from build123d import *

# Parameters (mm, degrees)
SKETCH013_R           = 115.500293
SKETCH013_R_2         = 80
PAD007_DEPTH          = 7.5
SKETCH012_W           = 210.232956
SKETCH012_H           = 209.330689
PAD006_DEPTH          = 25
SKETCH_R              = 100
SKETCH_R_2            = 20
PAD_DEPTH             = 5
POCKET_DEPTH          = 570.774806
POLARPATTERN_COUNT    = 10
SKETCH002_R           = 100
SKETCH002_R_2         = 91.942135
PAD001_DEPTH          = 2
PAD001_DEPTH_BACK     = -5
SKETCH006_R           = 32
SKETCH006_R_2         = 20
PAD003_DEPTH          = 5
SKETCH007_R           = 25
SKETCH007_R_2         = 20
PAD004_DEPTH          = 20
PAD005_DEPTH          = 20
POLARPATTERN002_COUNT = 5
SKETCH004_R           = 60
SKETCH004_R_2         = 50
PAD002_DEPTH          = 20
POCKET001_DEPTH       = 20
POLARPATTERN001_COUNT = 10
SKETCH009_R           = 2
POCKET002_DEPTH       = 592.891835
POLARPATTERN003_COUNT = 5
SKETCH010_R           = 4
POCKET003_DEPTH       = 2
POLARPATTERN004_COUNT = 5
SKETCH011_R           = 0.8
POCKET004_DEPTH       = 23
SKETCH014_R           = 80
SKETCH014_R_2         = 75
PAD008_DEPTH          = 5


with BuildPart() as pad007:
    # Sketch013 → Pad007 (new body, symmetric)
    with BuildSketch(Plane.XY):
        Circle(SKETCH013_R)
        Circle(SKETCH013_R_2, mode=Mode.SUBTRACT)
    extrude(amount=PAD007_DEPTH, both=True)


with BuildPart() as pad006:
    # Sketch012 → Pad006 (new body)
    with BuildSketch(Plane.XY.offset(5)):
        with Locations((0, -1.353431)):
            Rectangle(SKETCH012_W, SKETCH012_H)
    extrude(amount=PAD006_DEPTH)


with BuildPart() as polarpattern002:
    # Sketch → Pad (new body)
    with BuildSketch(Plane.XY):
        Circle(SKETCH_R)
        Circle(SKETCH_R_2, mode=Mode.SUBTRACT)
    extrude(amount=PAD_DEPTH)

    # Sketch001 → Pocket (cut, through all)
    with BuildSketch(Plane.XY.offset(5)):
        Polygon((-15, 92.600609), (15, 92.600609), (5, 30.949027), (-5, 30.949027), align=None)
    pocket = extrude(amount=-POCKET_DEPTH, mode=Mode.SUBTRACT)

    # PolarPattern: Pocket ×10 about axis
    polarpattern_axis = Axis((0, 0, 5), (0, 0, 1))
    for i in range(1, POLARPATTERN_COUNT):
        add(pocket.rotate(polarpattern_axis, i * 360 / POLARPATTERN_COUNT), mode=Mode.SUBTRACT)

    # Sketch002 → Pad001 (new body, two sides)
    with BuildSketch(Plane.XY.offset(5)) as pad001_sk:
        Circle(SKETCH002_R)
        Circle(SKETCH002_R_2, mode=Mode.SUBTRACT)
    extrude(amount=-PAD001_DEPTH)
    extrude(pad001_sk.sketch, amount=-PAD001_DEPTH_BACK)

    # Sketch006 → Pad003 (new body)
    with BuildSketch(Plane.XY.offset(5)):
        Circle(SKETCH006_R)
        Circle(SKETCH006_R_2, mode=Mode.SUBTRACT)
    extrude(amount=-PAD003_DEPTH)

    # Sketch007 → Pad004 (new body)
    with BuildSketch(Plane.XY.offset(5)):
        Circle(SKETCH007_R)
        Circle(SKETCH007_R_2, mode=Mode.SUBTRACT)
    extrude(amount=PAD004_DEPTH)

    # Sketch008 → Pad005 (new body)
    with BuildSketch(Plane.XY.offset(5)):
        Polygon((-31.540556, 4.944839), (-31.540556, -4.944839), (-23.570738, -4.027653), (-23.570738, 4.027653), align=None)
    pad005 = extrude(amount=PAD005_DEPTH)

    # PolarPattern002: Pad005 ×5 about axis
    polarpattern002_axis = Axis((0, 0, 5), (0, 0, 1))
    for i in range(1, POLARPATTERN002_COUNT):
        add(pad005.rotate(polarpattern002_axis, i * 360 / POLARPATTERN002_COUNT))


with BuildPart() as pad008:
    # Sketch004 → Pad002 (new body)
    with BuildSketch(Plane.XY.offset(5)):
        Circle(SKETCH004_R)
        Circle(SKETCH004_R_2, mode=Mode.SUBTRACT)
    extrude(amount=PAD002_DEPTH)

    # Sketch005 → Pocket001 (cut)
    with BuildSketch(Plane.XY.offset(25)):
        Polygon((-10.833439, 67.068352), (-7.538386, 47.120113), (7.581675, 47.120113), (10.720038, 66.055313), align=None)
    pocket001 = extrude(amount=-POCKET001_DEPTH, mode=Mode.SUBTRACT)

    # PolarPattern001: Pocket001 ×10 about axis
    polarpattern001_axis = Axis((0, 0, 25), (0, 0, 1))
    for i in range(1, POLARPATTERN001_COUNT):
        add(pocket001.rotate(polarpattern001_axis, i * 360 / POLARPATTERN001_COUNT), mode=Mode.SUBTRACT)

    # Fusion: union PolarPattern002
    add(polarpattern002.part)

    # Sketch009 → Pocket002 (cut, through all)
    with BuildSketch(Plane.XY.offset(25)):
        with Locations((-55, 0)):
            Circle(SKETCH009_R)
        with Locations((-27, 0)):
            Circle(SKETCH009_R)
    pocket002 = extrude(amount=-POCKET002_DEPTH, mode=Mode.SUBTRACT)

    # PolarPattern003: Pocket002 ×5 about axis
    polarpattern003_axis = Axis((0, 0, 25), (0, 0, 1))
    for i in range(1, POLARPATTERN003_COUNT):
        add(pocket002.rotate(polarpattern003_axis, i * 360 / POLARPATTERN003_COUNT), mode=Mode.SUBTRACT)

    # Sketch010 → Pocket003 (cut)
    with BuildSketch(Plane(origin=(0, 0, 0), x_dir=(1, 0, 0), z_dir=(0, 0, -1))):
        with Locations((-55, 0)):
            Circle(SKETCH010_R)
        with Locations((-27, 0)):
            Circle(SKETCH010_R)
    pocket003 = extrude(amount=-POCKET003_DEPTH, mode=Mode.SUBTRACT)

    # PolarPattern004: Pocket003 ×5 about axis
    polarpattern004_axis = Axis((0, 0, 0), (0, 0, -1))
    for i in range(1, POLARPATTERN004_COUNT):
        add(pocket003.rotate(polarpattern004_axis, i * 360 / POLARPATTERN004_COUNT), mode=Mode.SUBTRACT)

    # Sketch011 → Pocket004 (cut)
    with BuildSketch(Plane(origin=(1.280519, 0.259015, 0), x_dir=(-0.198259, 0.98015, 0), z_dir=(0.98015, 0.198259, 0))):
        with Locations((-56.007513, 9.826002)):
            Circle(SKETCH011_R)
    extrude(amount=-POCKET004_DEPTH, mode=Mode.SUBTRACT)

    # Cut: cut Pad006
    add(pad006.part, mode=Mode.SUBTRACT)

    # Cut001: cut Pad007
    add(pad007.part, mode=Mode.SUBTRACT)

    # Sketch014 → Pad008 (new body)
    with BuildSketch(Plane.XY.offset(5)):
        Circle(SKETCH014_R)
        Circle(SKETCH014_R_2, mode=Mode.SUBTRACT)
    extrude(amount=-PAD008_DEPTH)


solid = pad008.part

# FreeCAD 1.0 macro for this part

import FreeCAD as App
import Part
import Sketcher

V = App.Vector
Q = App.Units.Quantity

doc = App.newDocument("Part")
body = doc.addObject("PartDesign::Body", "Body")

# Sketch on XY plane
sketch1 = body.newObject("Sketcher::SketchObject", "Sketch")
sketch1.AttachmentSupport = (doc.getObject("XY_Plane"), [""])
sketch1.MapMode = "FlatFace"
sketch1.addGeometry(Part.Circle(V(0, 0, 0), V(0, 0, 1), 115.500293), False)
sketch1.addGeometry(Part.Circle(V(0, 0, 0), V(0, 0, 1), 80), False)
sketch1.addConstraint(Sketcher.Constraint("Coincident", 0, 3, -1, 1))
sketch1.addConstraint(Sketcher.Constraint("Coincident", 1, 3, -1, 1))
sketch1.addConstraint(Sketcher.Constraint("Diameter", 1, Q("160 mm")))
sketch1.addConstraint(Sketcher.Constraint("Diameter", 0, Q("231.000586 mm")))
pad1 = body.newObject("PartDesign::Pad", "Pad")
pad1.Profile = sketch1
pad1.Length = 15
pad1.Midplane = True
body2 = doc.addObject("PartDesign::Body", "Body001")

# Sketch on XY plane
sketch2 = body2.newObject("Sketcher::SketchObject", "Sketch001")
sketch2.AttachmentSupport = (doc.getObject("XY_Plane001"), [""])
sketch2.MapMode = "FlatFace"
sketch2.AttachmentOffset = App.Placement(V(0, 0, 5), App.Rotation())
sketch2.addGeometry(Part.LineSegment(V(-105.116478, 103.311914, 0), V(-105.116478, -106.018776, 0)), False)
sketch2.addGeometry(Part.LineSegment(V(-105.116478, -106.018776, 0), V(105.116478, -106.018776, 0)), False)
sketch2.addGeometry(Part.LineSegment(V(105.116478, -106.018776, 0), V(105.116478, 103.311914, 0)), False)
sketch2.addGeometry(Part.LineSegment(V(105.116478, 103.311914, 0), V(-105.116478, 103.311914, 0)), False)
sketch2.addConstraint(Sketcher.Constraint("Coincident", 0, 2, 1, 1))
sketch2.addConstraint(Sketcher.Constraint("Coincident", 1, 2, 2, 1))
sketch2.addConstraint(Sketcher.Constraint("Coincident", 2, 2, 3, 1))
sketch2.addConstraint(Sketcher.Constraint("Coincident", 3, 2, 0, 1))
sketch2.addConstraint(Sketcher.Constraint("Vertical", 0))
sketch2.addConstraint(Sketcher.Constraint("Horizontal", 1))
sketch2.addConstraint(Sketcher.Constraint("Vertical", 2))
sketch2.addConstraint(Sketcher.Constraint("Horizontal", 3))
sketch2.addConstraint(Sketcher.Constraint("DistanceY", 0, 2, 0, 1, Q("209.330689 mm")))
sketch2.addConstraint(Sketcher.Constraint("DistanceX", 1, 1, 1, 2, Q("210.232956 mm")))
sketch2.addConstraint(Sketcher.Constraint("DistanceX", 0, 2, -1, 1, Q("105.116478 mm")))
sketch2.addConstraint(Sketcher.Constraint("DistanceY", 0, 2, -1, 1, Q("106.018776 mm")))
pad2 = body2.newObject("PartDesign::Pad", "Pad001")
pad2.Profile = sketch2
pad2.Length = 25
body3 = doc.addObject("PartDesign::Body", "Body002")

# Sketch on XY plane
sketch3 = body3.newObject("Sketcher::SketchObject", "Sketch002")
sketch3.AttachmentSupport = (doc.getObject("XY_Plane002"), [""])
sketch3.MapMode = "FlatFace"
sketch3.addGeometry(Part.Circle(V(0, 0, 0), V(0, 0, 1), 100), False)
sketch3.addGeometry(Part.Circle(V(0, 0, 0), V(0, 0, 1), 20), False)
sketch3.addConstraint(Sketcher.Constraint("Coincident", 0, 3, -1, 1))
sketch3.addConstraint(Sketcher.Constraint("Coincident", 1, 3, -1, 1))
sketch3.addConstraint(Sketcher.Constraint("Diameter", 0, Q("200 mm")))
sketch3.addConstraint(Sketcher.Constraint("Diameter", 1, Q("40 mm")))
pad3 = body3.newObject("PartDesign::Pad", "Pad002")
pad3.Profile = sketch3
pad3.Length = 5

# Sketch on XY plane
sketch4 = body3.newObject("Sketcher::SketchObject", "Sketch003")
sketch4.AttachmentSupport = (doc.getObject("XY_Plane002"), [""])
sketch4.MapMode = "FlatFace"
sketch4.AttachmentOffset = App.Placement(V(0, 0, 5), App.Rotation())
sketch4.addGeometry(Part.LineSegment(V(15, 92.600609, 0), V(-15, 92.600609, 0)), False)
sketch4.addGeometry(Part.LineSegment(V(-15, 92.600609, 0), V(-5, 30.949027, 0)), False)
sketch4.addGeometry(Part.LineSegment(V(-5, 30.949027, 0), V(5, 30.949027, 0)), False)
sketch4.addGeometry(Part.LineSegment(V(5, 30.949027, 0), V(15, 92.600609, 0)), False)
sketch4.addConstraint(Sketcher.Constraint("Coincident", 0, 2, 1, 1))
sketch4.addConstraint(Sketcher.Constraint("Coincident", 1, 2, 2, 1))
sketch4.addConstraint(Sketcher.Constraint("Coincident", 2, 2, 3, 1))
sketch4.addConstraint(Sketcher.Constraint("Coincident", 3, 2, 0, 1))
sketch4.addConstraint(Sketcher.Constraint("Horizontal", 0))
sketch4.addConstraint(Sketcher.Constraint("Horizontal", 2))
sketch4.addConstraint(Sketcher.Constraint("Equal", 1, 3))
sketch4.addConstraint(Sketcher.Constraint("DistanceX", 0, 2, 0, 1, Q("30 mm")))
sketch4.addConstraint(Sketcher.Constraint("DistanceX", 2, 1, 2, 2, Q("10 mm")))
sketch4.addConstraint(Sketcher.Constraint("DistanceX", 0, 2, -1, 1, Q("15 mm")))
sketch4.addConstraint(Sketcher.Constraint("DistanceY", -1, 1, 0, 2, Q("92.600609 mm")))
sketch4.addConstraint(Sketcher.Constraint("Distance", 1, Q("62.457326 mm")))
pocket1 = body3.newObject("PartDesign::Pocket", "Pocket")
pocket1.Profile = sketch4
pocket1.Type = "ThroughAll"
doc.recompute()

polarpattern = body3.newObject("PartDesign::PolarPattern", "PolarPattern")
polarpattern.Originals = [pocket1]
polarpattern.Axis = (doc.getObject("Z_Axis002"), [""])
polarpattern.Angle = 360
polarpattern.Occurrences = 10
body3.Tip = polarpattern

# Sketch on XY plane
sketch5 = body3.newObject("Sketcher::SketchObject", "Sketch004")
sketch5.AttachmentSupport = (doc.getObject("XY_Plane002"), [""])
sketch5.MapMode = "FlatFace"
sketch5.AttachmentOffset = App.Placement(V(0, 0, 5), App.Rotation())
sketch5.addGeometry(Part.Circle(V(0, 0, 0), V(0, 0, 1), 100), False)
sketch5.addGeometry(Part.Circle(V(0, 0, 0), V(0, 0, 1), 91.942135), False)
sketch5.addConstraint(Sketcher.Constraint("Coincident", 0, 3, -1, 1))
sketch5.addConstraint(Sketcher.Constraint("Coincident", 1, 3, -1, 1))
sketch5.addConstraint(Sketcher.Constraint("Diameter", 0, Q("200 mm")))
sketch5.addConstraint(Sketcher.Constraint("Diameter", 1, Q("183.88427 mm")))
pad4 = body3.newObject("PartDesign::Pad", "Pad003")
pad4.Profile = sketch5
pad4.Type = "TwoLengths"
pad4.Length = 2
pad4.Length2 = 5
pad4.Reversed = True

# Sketch on XY plane
sketch6 = body3.newObject("Sketcher::SketchObject", "Sketch005")
sketch6.AttachmentSupport = (doc.getObject("XY_Plane002"), [""])
sketch6.MapMode = "FlatFace"
sketch6.AttachmentOffset = App.Placement(V(0, 0, 5), App.Rotation())
sketch6.addGeometry(Part.Circle(V(0, 0, 0), V(0, 0, 1), 32), False)
sketch6.addGeometry(Part.Circle(V(0, 0, 0), V(0, 0, 1), 20), False)
sketch6.addConstraint(Sketcher.Constraint("Coincident", 0, 3, -1, 1))
sketch6.addConstraint(Sketcher.Constraint("Coincident", 1, 3, -1, 1))
sketch6.addConstraint(Sketcher.Constraint("Diameter", 0, Q("64 mm")))
sketch6.addConstraint(Sketcher.Constraint("Diameter", 1, Q("40 mm")))
pad5 = body3.newObject("PartDesign::Pad", "Pad004")
pad5.Profile = sketch6
pad5.Length = 5
pad5.Reversed = True

# Sketch on XY plane
sketch7 = body3.newObject("Sketcher::SketchObject", "Sketch006")
sketch7.AttachmentSupport = (doc.getObject("XY_Plane002"), [""])
sketch7.MapMode = "FlatFace"
sketch7.AttachmentOffset = App.Placement(V(0, 0, 5), App.Rotation())
sketch7.addGeometry(Part.Circle(V(0, 0, 0), V(0, 0, 1), 25), False)
sketch7.addGeometry(Part.Circle(V(0, 0, 0), V(0, 0, 1), 20), False)
sketch7.addConstraint(Sketcher.Constraint("Coincident", 0, 3, -1, 1))
sketch7.addConstraint(Sketcher.Constraint("Coincident", 1, 3, -1, 1))
sketch7.addConstraint(Sketcher.Constraint("Diameter", 0, Q("50 mm")))
sketch7.addConstraint(Sketcher.Constraint("Diameter", 1, Q("40 mm")))
pad6 = body3.newObject("PartDesign::Pad", "Pad005")
pad6.Profile = sketch7
pad6.Length = 20

# Sketch on XY plane
sketch8 = body3.newObject("Sketcher::SketchObject", "Sketch007")
sketch8.AttachmentSupport = (doc.getObject("XY_Plane002"), [""])
sketch8.MapMode = "FlatFace"
sketch8.AttachmentOffset = App.Placement(V(0, 0, 5), App.Rotation())
sketch8.addGeometry(Part.LineSegment(V(-31.540556, 4.944839, 0), V(-31.540556, -4.944839, 0)), False)
sketch8.addGeometry(Part.LineSegment(V(-31.540556, -4.944839, 0), V(-23.570738, -4.027653, 0)), False)
sketch8.addGeometry(Part.LineSegment(V(-23.570738, -4.027653, 0), V(-23.570738, 4.027653, 0)), False)
sketch8.addGeometry(Part.LineSegment(V(-23.570738, 4.027653, 0), V(-31.540556, 4.944839, 0)), False)
sketch8.addConstraint(Sketcher.Constraint("Coincident", 0, 2, 1, 1))
sketch8.addConstraint(Sketcher.Constraint("Coincident", 1, 2, 2, 1))
sketch8.addConstraint(Sketcher.Constraint("Coincident", 2, 2, 3, 1))
sketch8.addConstraint(Sketcher.Constraint("Coincident", 3, 2, 0, 1))
sketch8.addConstraint(Sketcher.Constraint("Vertical", 0))
sketch8.addConstraint(Sketcher.Constraint("Vertical", 2))
sketch8.addConstraint(Sketcher.Constraint("Equal", 1, 3))
sketch8.addConstraint(Sketcher.Constraint("Distance", 1, Q("8.02242 mm")))
sketch8.addConstraint(Sketcher.Constraint("DistanceY", 0, 2, 0, 1, Q("9.889678 mm")))
sketch8.addConstraint(Sketcher.Constraint("DistanceY", 2, 1, 2, 2, Q("8.055306 mm")))
sketch8.addConstraint(Sketcher.Constraint("DistanceY", 0, 2, -1, 1, Q("4.944839 mm")))
sketch8.addConstraint(Sketcher.Constraint("DistanceX", 0, 2, -1, 1, Q("31.540556 mm")))
pad7 = body3.newObject("PartDesign::Pad", "Pad006")
pad7.Profile = sketch8
pad7.Length = 20
doc.recompute()

polarpattern2 = body3.newObject("PartDesign::PolarPattern", "PolarPattern001")
polarpattern2.Originals = [pad7]
polarpattern2.Axis = (doc.getObject("Z_Axis002"), [""])
polarpattern2.Angle = 360
polarpattern2.Occurrences = 5
body3.Tip = polarpattern2
body4 = doc.addObject("PartDesign::Body", "Body003")
body4.AllowCompound = True

# Sketch on XY plane
sketch9 = body4.newObject("Sketcher::SketchObject", "Sketch008")
sketch9.AttachmentSupport = (doc.getObject("XY_Plane003"), [""])
sketch9.MapMode = "FlatFace"
sketch9.AttachmentOffset = App.Placement(V(0, 0, 5), App.Rotation())
sketch9.addGeometry(Part.Circle(V(0, 0, 0), V(0, 0, 1), 60), False)
sketch9.addGeometry(Part.Circle(V(0, 0, 0), V(0, 0, 1), 50), False)
sketch9.addConstraint(Sketcher.Constraint("Coincident", 0, 3, -1, 1))
sketch9.addConstraint(Sketcher.Constraint("Coincident", 1, 3, -1, 1))
sketch9.addConstraint(Sketcher.Constraint("Diameter", 0, Q("120 mm")))
sketch9.addConstraint(Sketcher.Constraint("Diameter", 1, Q("100 mm")))
pad8 = body4.newObject("PartDesign::Pad", "Pad007")
pad8.Profile = sketch9
pad8.Length = 20

# Sketch on XY plane
sketch10 = body4.newObject("Sketcher::SketchObject", "Sketch009")
sketch10.AttachmentSupport = (doc.getObject("XY_Plane003"), [""])
sketch10.MapMode = "FlatFace"
sketch10.AttachmentOffset = App.Placement(V(0, 0, 25), App.Rotation())
sketch10.addGeometry(Part.LineSegment(V(-10.833439, 67.068352, 0), V(-7.538386, 47.120113, 0)), False)
sketch10.addGeometry(Part.LineSegment(V(-7.538386, 47.120113, 0), V(7.581675, 47.120113, 0)), False)
sketch10.addGeometry(Part.LineSegment(V(7.581675, 47.120113, 0), V(10.720038, 66.055313, 0)), False)
sketch10.addGeometry(Part.LineSegment(V(10.720038, 66.055313, 0), V(-10.833439, 67.068352, 0)), False)
sketch10.addConstraint(Sketcher.Constraint("Coincident", 0, 2, 1, 1))
sketch10.addConstraint(Sketcher.Constraint("Coincident", 1, 2, 2, 1))
sketch10.addConstraint(Sketcher.Constraint("Coincident", 2, 2, 3, 1))
sketch10.addConstraint(Sketcher.Constraint("Coincident", 3, 2, 0, 1))
sketch10.addConstraint(Sketcher.Constraint("Horizontal", 1))
sketch10.addConstraint(Sketcher.Constraint("DistanceX", 1, 1, 1, 2, Q("15.120061 mm")))
sketch10.addConstraint(Sketcher.Constraint("DistanceY", 1, 2, 2, 2, Q("18.9352 mm")))
sketch10.addConstraint(Sketcher.Constraint("Distance", 3, Q("21.577271 mm")))
sketch10.addConstraint(Sketcher.Constraint("DistanceX", -1, 1, 2, 2, Q("10.720038 mm")))
sketch10.addConstraint(Sketcher.Constraint("DistanceX", 3, 2, -1, 1, Q("10.833439 mm")))
sketch10.addConstraint(Sketcher.Constraint("Distance", 0, Q("20.218546 mm")))
sketch10.addConstraint(Sketcher.Constraint("DistanceY", -1, 1, 0, 2, Q("47.120113 mm")))
pocket2 = body4.newObject("PartDesign::Pocket", "Pocket001")
pocket2.Profile = sketch10
pocket2.Length = 20
doc.recompute()

polarpattern3 = body4.newObject("PartDesign::PolarPattern", "PolarPattern002")
polarpattern3.Originals = [pocket2]
polarpattern3.Axis = (doc.getObject("Z_Axis003"), [""])
polarpattern3.Angle = 360
polarpattern3.Occurrences = 10
body4.Tip = polarpattern3
doc.recompute()

boolean = body4.newObject("PartDesign::Boolean", "Boolean")
boolean.Type = "Fuse"
boolean.addObjects([body3])

# Sketch on XY plane
sketch11 = body4.newObject("Sketcher::SketchObject", "Sketch010")
sketch11.AttachmentSupport = (doc.getObject("XY_Plane003"), [""])
sketch11.MapMode = "FlatFace"
sketch11.AttachmentOffset = App.Placement(V(0, 0, 25), App.Rotation())
sketch11.addGeometry(Part.Circle(V(-55, 0, 0), V(0, 0, 1), 2), False)
sketch11.addGeometry(Part.Circle(V(-27, 0, 0), V(0, 0, 1), 2), False)
sketch11.addConstraint(Sketcher.Constraint("Equal", 0, 1))
sketch11.addConstraint(Sketcher.Constraint("PointOnObject", 0, 3, -1))
sketch11.addConstraint(Sketcher.Constraint("PointOnObject", 1, 3, -1))
sketch11.addConstraint(Sketcher.Constraint("Diameter", 0, Q("4 mm")))
sketch11.addConstraint(Sketcher.Constraint("DistanceX", 0, 3, -1, 1, Q("55 mm")))
sketch11.addConstraint(Sketcher.Constraint("DistanceX", 1, 3, -1, 1, Q("27 mm")))
pocket3 = body4.newObject("PartDesign::Pocket", "Pocket002")
pocket3.Profile = sketch11
pocket3.Type = "ThroughAll"
doc.recompute()

polarpattern4 = body4.newObject("PartDesign::PolarPattern", "PolarPattern003")
polarpattern4.Originals = [pocket3]
polarpattern4.Axis = (doc.getObject("Z_Axis003"), [""])
polarpattern4.Angle = 360
polarpattern4.Occurrences = 5
body4.Tip = polarpattern4

# Sketch on XY plane
sketch12 = body4.newObject("Sketcher::SketchObject", "Sketch011")
sketch12.AttachmentSupport = (doc.getObject("XY_Plane003"), [""])
sketch12.MapMode = "FlatFace"
sketch12.addGeometry(Part.Circle(V(-55, 0, 0), V(0, 0, 1), 4), False)
sketch12.addGeometry(Part.Circle(V(-27, 0, 0), V(0, 0, 1), 4), False)
sketch12.addConstraint(Sketcher.Constraint("Equal", 0, 1))
sketch12.addConstraint(Sketcher.Constraint("PointOnObject", 0, 3, -1))
sketch12.addConstraint(Sketcher.Constraint("PointOnObject", 1, 3, -1))
sketch12.addConstraint(Sketcher.Constraint("Diameter", 0, Q("8 mm")))
sketch12.addConstraint(Sketcher.Constraint("DistanceX", 0, 3, -1, 1, Q("55 mm")))
sketch12.addConstraint(Sketcher.Constraint("DistanceX", 1, 3, -1, 1, Q("27 mm")))
pocket4 = body4.newObject("PartDesign::Pocket", "Pocket003")
pocket4.Profile = sketch12
pocket4.Length = 2
pocket4.Reversed = True
doc.recompute()

polarpattern5 = body4.newObject("PartDesign::PolarPattern", "PolarPattern004")
polarpattern5.Originals = [pocket4]
polarpattern5.Axis = (doc.getObject("Z_Axis003"), [""])
polarpattern5.Angle = 360
polarpattern5.Occurrences = 5
body4.Tip = polarpattern5

# Sketch on an angled plane
sketch13 = body4.newObject("Sketcher::SketchObject", "Sketch012")
sketch13.Placement = App.Placement(V(1.280519, 0.259015, 0), App.Rotation(V(-0.198258935, 0.98014968, 0), V(0, 0, 1.000000001), V(0.98014968, 0.198258935, 0), "ZXY"))
sketch13.addGeometry(Part.Circle(V(-56.007513, 9.826002, 0), V(0, 0, 1), 0.8), False)
sketch13.addConstraint(Sketcher.Constraint("Diameter", 0, Q("1.6 mm")))
sketch13.addConstraint(Sketcher.Constraint("DistanceX", 0, 3, -1, 1, Q("56.007513 mm")))
sketch13.addConstraint(Sketcher.Constraint("DistanceY", -1, 1, 0, 3, Q("9.826002 mm")))
pocket5 = body4.newObject("PartDesign::Pocket", "Pocket004")
pocket5.Profile = sketch13
pocket5.Length = 23
doc.recompute()

boolean2 = body4.newObject("PartDesign::Boolean", "Boolean001")
boolean2.Type = "Cut"
boolean2.addObjects([body2])
doc.recompute()

boolean3 = body4.newObject("PartDesign::Boolean", "Boolean002")
boolean3.Type = "Cut"
boolean3.addObjects([body])

# Sketch on XY plane
sketch14 = body4.newObject("Sketcher::SketchObject", "Sketch013")
sketch14.AttachmentSupport = (doc.getObject("XY_Plane003"), [""])
sketch14.MapMode = "FlatFace"
sketch14.AttachmentOffset = App.Placement(V(0, 0, 5), App.Rotation())
sketch14.addGeometry(Part.Circle(V(0, 0, 0), V(0, 0, 1), 80), False)
sketch14.addGeometry(Part.Circle(V(0, 0, 0), V(0, 0, 1), 75), False)
sketch14.addConstraint(Sketcher.Constraint("Coincident", 0, 3, -1, 1))
sketch14.addConstraint(Sketcher.Constraint("Coincident", 1, 3, -1, 1))
sketch14.addConstraint(Sketcher.Constraint("Diameter", 0, Q("160 mm")))
sketch14.addConstraint(Sketcher.Constraint("Diameter", 1, Q("150 mm")))
pad9 = body4.newObject("PartDesign::Pad", "Pad008")
pad9.Profile = sketch14
pad9.Length = 5
pad9.Reversed = True

doc.recompute()
